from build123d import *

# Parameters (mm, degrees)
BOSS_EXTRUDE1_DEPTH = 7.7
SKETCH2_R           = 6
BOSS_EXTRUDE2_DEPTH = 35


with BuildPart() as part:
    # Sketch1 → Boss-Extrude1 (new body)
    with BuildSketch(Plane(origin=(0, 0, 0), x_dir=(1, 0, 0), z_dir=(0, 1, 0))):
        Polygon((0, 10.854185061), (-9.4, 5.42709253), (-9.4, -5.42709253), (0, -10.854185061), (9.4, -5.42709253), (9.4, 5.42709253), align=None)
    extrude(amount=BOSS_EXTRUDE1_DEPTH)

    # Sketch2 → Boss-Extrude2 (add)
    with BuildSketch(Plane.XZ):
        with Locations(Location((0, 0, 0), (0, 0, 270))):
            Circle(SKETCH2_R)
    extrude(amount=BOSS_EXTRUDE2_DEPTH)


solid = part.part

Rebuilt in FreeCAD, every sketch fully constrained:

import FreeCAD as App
import Part
import Sketcher
from FreeCAD import Vector
Q = App.Units.Quantity

doc = App.newDocument("Part")
params = doc.addObject("Spreadsheet::Sheet", "Params")
for row, (alias, value) in enumerate([
    ("pad1_length", "7.7 mm"),
    ("sketch2_diameter", "12 mm"),
    ("pad2_length", "35 mm"),
], start=1):
    params.set(f"A{row}", alias)
    params.set(f"B{row}", "=" + value)
    params.setAlias(f"B{row}", alias)

body = doc.addObject("PartDesign::Body", "Body")

# Sketch on XZ plane
sketch1 = doc.addObject("Sketcher::SketchObject", "Sketch")
body.addObject(sketch1)
sketch1.AttachmentSupport = (doc.XZ_Plane, [""])
sketch1.MapMode = "FlatFace"
sketch1.addGeometry([
    Part.LineSegment(Vector(0, -11, 0), Vector(-9, -5, 0)),  # 0
    Part.LineSegment(Vector(-9, -5, 0), Vector(-9, 5, 0)),  # 1
    Part.LineSegment(Vector(-9, 5, 0), Vector(0, 11, 0)),  # 2
    Part.LineSegment(Vector(0, 11, 0), Vector(9, 5, 0)),  # 3
    Part.LineSegment(Vector(9, 5, 0), Vector(9, -5, 0)),  # 4
    Part.LineSegment(Vector(9, -5, 0), Vector(0, -11, 0)),  # 5
], False)
sketch1.addConstraint([
    Sketcher.Constraint("Coincident", 0, 2, 1, 1),
    Sketcher.Constraint("Coincident", 1, 2, 2, 1),
    Sketcher.Constraint("Coincident", 2, 2, 3, 1),
    Sketcher.Constraint("Coincident", 3, 2, 4, 1),
    Sketcher.Constraint("Coincident", 4, 2, 5, 1),
    Sketcher.Constraint("Coincident", 5, 2, 0, 1),
    Sketcher.Constraint("Vertical", 1),
    Sketcher.Constraint("Vertical", 4),
    Sketcher.Constraint("Symmetric", 0, 2, 3, 2, -1, 1),
    Sketcher.Constraint("Symmetric", 2, 2, 5, 2, -1, 1),
    Sketcher.Constraint("PointOnObject", 2, 2, -2),
    Sketcher.Constraint("Parallel", 2, 5),
    Sketcher.Constraint("Horizontal", 1, 2, 3, 2),
    Sketcher.Constraint("Angle", 0, Q("150 deg")),
    Sketcher.Constraint("DistanceX", 0, 2, -1, 1, Q("9.4 mm")),
    Sketcher.Constraint("DistanceY", 1, 1, 1, 2, Q("10.854185 mm")),
])
pad1 = doc.addObject("PartDesign::Pad", "Pad")
body.addObject(pad1)
pad1.Profile = sketch1
pad1.setExpression("Length", "Params.pad1_length")
pad1.Reversed = True

# Sketch on XZ plane
sketch2 = doc.addObject("Sketcher::SketchObject", "Sketch001")
body.addObject(sketch2)
sketch2.AttachmentSupport = (doc.XZ_Plane, [""])
sketch2.MapMode = "FlatFace"
sketch2.addGeometry(Part.Circle(Vector(0, 0, 0), Vector(0, 0, 1), 6), False)
sketch2.addConstraint([
    Sketcher.Constraint("Coincident", 0, 3, -1, 1),
    Sketcher.Constraint("Diameter", 0, Q("12 mm")),
])
sketch2.setExpression("Constraints[1]", "Params.sketch2_diameter")
pad2 = doc.addObject("PartDesign::Pad", "Pad001")
body.addObject(pad2)
pad2.Profile = sketch2
pad2.setExpression("Length", "Params.pad2_length")

doc.recompute()
